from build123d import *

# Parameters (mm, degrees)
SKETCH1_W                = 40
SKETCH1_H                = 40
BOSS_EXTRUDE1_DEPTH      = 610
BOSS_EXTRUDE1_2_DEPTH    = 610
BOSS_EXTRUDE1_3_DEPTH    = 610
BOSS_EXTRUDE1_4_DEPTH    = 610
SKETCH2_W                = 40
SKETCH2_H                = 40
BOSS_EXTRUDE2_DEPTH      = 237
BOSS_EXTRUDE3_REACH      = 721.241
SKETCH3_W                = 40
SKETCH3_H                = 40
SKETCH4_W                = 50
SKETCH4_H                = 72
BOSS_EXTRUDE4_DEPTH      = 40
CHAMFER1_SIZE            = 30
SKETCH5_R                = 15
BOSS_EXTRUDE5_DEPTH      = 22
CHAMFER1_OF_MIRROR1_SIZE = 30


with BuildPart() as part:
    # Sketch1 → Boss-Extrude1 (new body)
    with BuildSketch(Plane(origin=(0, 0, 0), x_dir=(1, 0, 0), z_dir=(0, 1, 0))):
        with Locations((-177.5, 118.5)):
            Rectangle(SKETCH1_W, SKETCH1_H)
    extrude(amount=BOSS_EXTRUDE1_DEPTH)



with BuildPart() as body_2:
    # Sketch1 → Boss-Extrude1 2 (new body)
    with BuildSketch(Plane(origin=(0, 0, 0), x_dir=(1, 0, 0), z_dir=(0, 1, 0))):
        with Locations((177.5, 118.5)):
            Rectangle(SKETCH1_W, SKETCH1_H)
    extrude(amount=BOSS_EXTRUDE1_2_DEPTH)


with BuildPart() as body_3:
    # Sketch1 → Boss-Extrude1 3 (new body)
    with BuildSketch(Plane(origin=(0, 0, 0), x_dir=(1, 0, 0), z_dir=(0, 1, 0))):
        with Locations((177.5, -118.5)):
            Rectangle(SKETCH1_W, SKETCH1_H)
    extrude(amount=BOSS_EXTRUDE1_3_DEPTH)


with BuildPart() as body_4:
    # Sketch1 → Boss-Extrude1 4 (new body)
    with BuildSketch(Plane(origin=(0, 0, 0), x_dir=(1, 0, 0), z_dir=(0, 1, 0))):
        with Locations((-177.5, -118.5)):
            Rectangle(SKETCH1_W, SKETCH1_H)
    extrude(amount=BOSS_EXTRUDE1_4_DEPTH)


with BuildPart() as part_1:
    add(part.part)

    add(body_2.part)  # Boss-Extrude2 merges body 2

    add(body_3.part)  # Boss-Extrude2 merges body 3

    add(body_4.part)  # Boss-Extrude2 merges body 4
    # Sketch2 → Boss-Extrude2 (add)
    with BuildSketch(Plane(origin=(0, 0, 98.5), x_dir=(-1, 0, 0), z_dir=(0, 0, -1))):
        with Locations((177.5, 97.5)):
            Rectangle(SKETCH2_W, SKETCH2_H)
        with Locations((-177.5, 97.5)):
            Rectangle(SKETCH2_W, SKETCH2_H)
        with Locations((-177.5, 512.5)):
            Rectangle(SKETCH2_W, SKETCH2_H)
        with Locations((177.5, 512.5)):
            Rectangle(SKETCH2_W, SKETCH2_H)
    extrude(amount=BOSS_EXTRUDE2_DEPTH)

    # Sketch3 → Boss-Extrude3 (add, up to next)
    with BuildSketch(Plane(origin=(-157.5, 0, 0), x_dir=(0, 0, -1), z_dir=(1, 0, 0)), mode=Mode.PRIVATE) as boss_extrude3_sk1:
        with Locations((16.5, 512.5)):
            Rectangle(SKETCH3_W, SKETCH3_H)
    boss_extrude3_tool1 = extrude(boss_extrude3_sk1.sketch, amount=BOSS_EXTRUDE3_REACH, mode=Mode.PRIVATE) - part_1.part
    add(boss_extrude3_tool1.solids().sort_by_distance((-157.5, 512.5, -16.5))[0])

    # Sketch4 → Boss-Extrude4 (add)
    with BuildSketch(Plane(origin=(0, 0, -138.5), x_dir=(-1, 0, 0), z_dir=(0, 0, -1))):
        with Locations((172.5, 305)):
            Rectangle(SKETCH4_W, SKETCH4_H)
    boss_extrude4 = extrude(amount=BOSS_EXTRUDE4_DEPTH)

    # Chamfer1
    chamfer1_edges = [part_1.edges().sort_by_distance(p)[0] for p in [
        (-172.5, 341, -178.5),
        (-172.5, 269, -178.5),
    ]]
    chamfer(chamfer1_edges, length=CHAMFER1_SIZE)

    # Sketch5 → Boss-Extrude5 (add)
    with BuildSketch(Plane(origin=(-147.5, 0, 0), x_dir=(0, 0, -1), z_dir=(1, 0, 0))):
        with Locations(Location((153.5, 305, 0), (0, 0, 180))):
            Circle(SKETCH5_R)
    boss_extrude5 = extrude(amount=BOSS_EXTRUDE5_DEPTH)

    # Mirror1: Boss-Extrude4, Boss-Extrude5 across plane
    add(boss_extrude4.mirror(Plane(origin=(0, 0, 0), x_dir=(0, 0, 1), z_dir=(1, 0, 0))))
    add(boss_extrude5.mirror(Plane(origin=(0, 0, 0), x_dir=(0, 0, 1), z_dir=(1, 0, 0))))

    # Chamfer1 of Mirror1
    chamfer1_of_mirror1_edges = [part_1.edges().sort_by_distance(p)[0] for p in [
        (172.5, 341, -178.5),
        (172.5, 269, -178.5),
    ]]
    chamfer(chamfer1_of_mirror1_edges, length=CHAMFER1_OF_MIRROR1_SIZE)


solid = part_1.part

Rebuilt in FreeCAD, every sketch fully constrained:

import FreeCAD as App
import Part
import Sketcher
Q = App.Units.Quantity


def edges_at(feature, points):
    """Names of the edges that pass closest to the given points."""
    edges = feature.Shape.Edges
    near = lambda p: min(range(len(edges)), key=lambda i: edges[i].distToShape(Part.Vertex(*p))[0])
    return sorted({f"Edge{near(p) + 1}" for p in points})


def add_polygon(sketch, points):
    """Adds a closed chain of lines whose ends are joined by coincident constraints."""
    first, n = sketch.GeometryCount, len(points)
    for a, b in zip(points, points[1:] + points[:1]):
        sketch.addGeometry(Part.LineSegment(App.Vector(*a, 0), App.Vector(*b, 0)), False)
    for i in range(n):
        sketch.addConstraint(Sketcher.Constraint("Coincident", first + i, 2, first + (i + 1) % n, 1))

doc = App.newDocument("Part")
body = doc.addObject("PartDesign::Body", "Body")

sketch1 = body.newObject("Sketcher::SketchObject", "Sketch")
sketch1.AttachmentSupport = (doc.getObject("XZ_Plane"), [""])
sketch1.MapMode = "FlatFace"
add_polygon(sketch1, [(-197.5, -138.5), (-197.5, -98.5), (-157.5, -98.5), (-157.5, -138.5)])
sketch1.addConstraint(Sketcher.Constraint("Vertical", 0))
sketch1.addConstraint(Sketcher.Constraint("Horizontal", 1))
sketch1.addConstraint(Sketcher.Constraint("Vertical", 2))
sketch1.addConstraint(Sketcher.Constraint("Horizontal", 3))
sketch1.addConstraint(Sketcher.Constraint("Equal", 3, 0))
sketch1.addConstraint(Sketcher.Constraint("DistanceX", 1, 1, 1, 2, Q("40 mm")))
sketch1.addConstraint(Sketcher.Constraint("DistanceX", 0, 2, -1, 1, Q("197.5 mm")))
sketch1.addConstraint(Sketcher.Constraint("DistanceY", 0, 2, -1, 1, Q("98.5 mm")))
pad1 = body.newObject("PartDesign::Pad", "Pad")
pad1.Profile = sketch1
pad1.Length = 610
pad1.Reversed = True
body2 = doc.addObject("PartDesign::Body", "Body001")

sketch2 = body2.newObject("Sketcher::SketchObject", "Sketch001")
sketch2.AttachmentSupport = (doc.getObject("XZ_Plane001"), [""])
sketch2.MapMode = "FlatFace"
add_polygon(sketch2, [(157.5, -138.5), (157.5, -98.5), (197.5, -98.5), (197.5, -138.5)])
sketch2.addConstraint(Sketcher.Constraint("Vertical", 0))
sketch2.addConstraint(Sketcher.Constraint("Horizontal", 1))
sketch2.addConstraint(Sketcher.Constraint("Vertical", 2))
sketch2.addConstraint(Sketcher.Constraint("Horizontal", 3))
sketch2.addConstraint(Sketcher.Constraint("Equal", 3, 0))
sketch2.addConstraint(Sketcher.Constraint("DistanceX", 1, 1, 1, 2, Q("40 mm")))
sketch2.addConstraint(Sketcher.Constraint("DistanceX", -1, 1, 0, 2, Q("157.5 mm")))
sketch2.addConstraint(Sketcher.Constraint("DistanceY", 0, 2, -1, 1, Q("98.5 mm")))
pad2 = body2.newObject("PartDesign::Pad", "Pad001")
pad2.Profile = sketch2
pad2.Length = 610
pad2.Reversed = True
body3 = doc.addObject("PartDesign::Body", "Body002")

sketch3 = body3.newObject("Sketcher::SketchObject", "Sketch002")
sketch3.AttachmentSupport = (doc.getObject("XZ_Plane002"), [""])
sketch3.MapMode = "FlatFace"
add_polygon(sketch3, [(157.5, 98.5), (157.5, 138.5), (197.5, 138.5), (197.5, 98.5)])
sketch3.addConstraint(Sketcher.Constraint("Vertical", 0))
sketch3.addConstraint(Sketcher.Constraint("Horizontal", 1))
sketch3.addConstraint(Sketcher.Constraint("Vertical", 2))
sketch3.addConstraint(Sketcher.Constraint("Horizontal", 3))
sketch3.addConstraint(Sketcher.Constraint("Equal", 3, 0))
sketch3.addConstraint(Sketcher.Constraint("DistanceX", 1, 1, 1, 2, Q("40 mm")))
sketch3.addConstraint(Sketcher.Constraint("DistanceX", -1, 1, 0, 2, Q("157.5 mm")))
sketch3.addConstraint(Sketcher.Constraint("DistanceY", -1, 1, 0, 2, Q("138.5 mm")))
pad3 = body3.newObject("PartDesign::Pad", "Pad002")
pad3.Profile = sketch3
pad3.Length = 610
pad3.Reversed = True
body4 = doc.addObject("PartDesign::Body", "Body003")

sketch4 = body4.newObject("Sketcher::SketchObject", "Sketch003")
sketch4.AttachmentSupport = (doc.getObject("XZ_Plane003"), [""])
sketch4.MapMode = "FlatFace"
add_polygon(sketch4, [(-197.5, 98.5), (-197.5, 138.5), (-157.5, 138.5), (-157.5, 98.5)])
sketch4.addConstraint(Sketcher.Constraint("Vertical", 0))
sketch4.addConstraint(Sketcher.Constraint("Horizontal", 1))
sketch4.addConstraint(Sketcher.Constraint("Vertical", 2))
sketch4.addConstraint(Sketcher.Constraint("Horizontal", 3))
sketch4.addConstraint(Sketcher.Constraint("Equal", 3, 0))
sketch4.addConstraint(Sketcher.Constraint("DistanceX", 1, 1, 1, 2, Q("40 mm")))
sketch4.addConstraint(Sketcher.Constraint("DistanceX", 0, 2, -1, 1, Q("197.5 mm")))
sketch4.addConstraint(Sketcher.Constraint("DistanceY", -1, 1, 0, 2, Q("138.5 mm")))
pad4 = body4.newObject("PartDesign::Pad", "Pad003")
pad4.Profile = sketch4
pad4.Length = 610
pad4.Reversed = True
body.AllowCompound = True
doc.recompute()

boolean = body.newObject("PartDesign::Boolean", "Boolean")
boolean.Type = "Fuse"
boolean.addObjects([body2])
doc.recompute()

boolean2 = body.newObject("PartDesign::Boolean", "Boolean001")
boolean2.Type = "Fuse"
boolean2.addObjects([body3])
doc.recompute()

boolean3 = body.newObject("PartDesign::Boolean", "Boolean002")
boolean3.Type = "Fuse"
boolean3.addObjects([body4])

sketch5 = body.newObject("Sketcher::SketchObject", "Sketch004")
sketch5.AttachmentSupport = (doc.getObject("XY_Plane"), [""])
sketch5.MapMode = "FlatFace"
sketch5.AttachmentOffset = App.Placement(App.Vector(0, 0, 98.5), App.Rotation())
add_polygon(sketch5, [(-157.5, 117.5), (-157.5, 77.5), (-197.5, 77.5), (-197.5, 117.5)])
add_polygon(sketch5, [(197.5, 117.5), (197.5, 77.5), (157.5, 77.5), (157.5, 117.5)])
add_polygon(sketch5, [(197.5, 532.5), (197.5, 492.5), (157.5, 492.5), (157.5, 532.5)])
add_polygon(sketch5, [(-157.5, 532.5), (-157.5, 492.5), (-197.5, 492.5), (-197.5, 532.5)])
sketch5.addConstraint(Sketcher.Constraint("Vertical", 0))
sketch5.addConstraint(Sketcher.Constraint("Horizontal", 1))
sketch5.addConstraint(Sketcher.Constraint("Vertical", 2))
sketch5.addConstraint(Sketcher.Constraint("Horizontal", 3))
sketch5.addConstraint(Sketcher.Constraint("Vertical", 4))
sketch5.addConstraint(Sketcher.Constraint("Horizontal", 5))
sketch5.addConstraint(Sketcher.Constraint("Vertical", 6))
sketch5.addConstraint(Sketcher.Constraint("Horizontal", 7))
sketch5.addConstraint(Sketcher.Constraint("Vertical", 8))
sketch5.addConstraint(Sketcher.Constraint("Horizontal", 9))
sketch5.addConstraint(Sketcher.Constraint("Vertical", 10))
sketch5.addConstraint(Sketcher.Constraint("Horizontal", 11))
sketch5.addConstraint(Sketcher.Constraint("Vertical", 12))
sketch5.addConstraint(Sketcher.Constraint("Horizontal", 13))
sketch5.addConstraint(Sketcher.Constraint("Vertical", 14))
sketch5.addConstraint(Sketcher.Constraint("Horizontal", 15))
sketch5.addConstraint(Sketcher.Constraint("Symmetric", 1, 2, 4, 2, -2))
sketch5.addConstraint(Sketcher.Constraint("Symmetric", 3, 2, 6, 2, -2))
sketch5.addConstraint(Sketcher.Constraint("Symmetric", 9, 2, 12, 2, -2))
sketch5.addConstraint(Sketcher.Constraint("Symmetric", 11, 2, 14, 2, -2))
sketch5.addConstraint(Sketcher.Constraint("Vertical", 7, 2, 8, 2))
sketch5.addConstraint(Sketcher.Constraint("Vertical", 6, 2, 9, 2))
sketch5.addConstraint(Sketcher.Constraint("Equal", 15, 0))
sketch5.addConstraint(Sketcher.Constraint("Equal", 6, 8))
sketch5.addConstraint(Sketcher.Constraint("DistanceX", 1, 2, 1, 1, Q("40 mm")))
sketch5.addConstraint(Sketcher.Constraint("DistanceX", 0, 2, 4, 2, Q("355 mm")))
sketch5.addConstraint(Sketcher.Constraint("DistanceY", 7, 2, 8, 2, Q("375 mm")))
sketch5.addConstraint(Sketcher.Constraint("DistanceY", -1, 1, 0, 2, Q("77.5 mm")))
pad5 = body.newObject("PartDesign::Pad", "Pad004")
pad5.Profile = sketch5
pad5.Length = 237
pad5.Reversed = True

sketch6 = body.newObject("Sketcher::SketchObject", "Sketch005")
sketch6.AttachmentSupport = (doc.getObject("YZ_Plane"), [""])
sketch6.MapMode = "FlatFace"
sketch6.AttachmentOffset = App.Placement(App.Vector(0, 0, -157.5), App.Rotation())
add_polygon(sketch6, [(532.5, 3.5), (492.5, 3.5), (492.5, -36.5), (532.5, -36.5)])
sketch6.addConstraint(Sketcher.Constraint("Horizontal", 0))
sketch6.addConstraint(Sketcher.Constraint("Vertical", 1))
sketch6.addConstraint(Sketcher.Constraint("Horizontal", 2))
sketch6.addConstraint(Sketcher.Constraint("Vertical", 3))
sketch6.addConstraint(Sketcher.Constraint("Equal", 2, 1))
sketch6.addConstraint(Sketcher.Constraint("DistanceX", 0, 2, 0, 1, Q("40 mm")))
sketch6.addConstraint(Sketcher.Constraint("DistanceX", -1, 1, 0, 2, Q("492.5 mm")))
sketch6.addConstraint(Sketcher.Constraint("DistanceY", -1, 1, 0, 2, Q("3.5 mm")))
pad6 = body.newObject("PartDesign::Pad", "Pad005")
pad6.Profile = sketch6
pad6.Type = "UpToFirst"

sketch7 = body.newObject("Sketcher::SketchObject", "Sketch006")
sketch7.AttachmentSupport = (doc.getObject("XY_Plane"), [""])
sketch7.MapMode = "FlatFace"
sketch7.AttachmentOffset = App.Placement(App.Vector(0, 0, -138.5), App.Rotation())
add_polygon(sketch7, [(-147.5, 341), (-147.5, 269), (-197.5, 269), (-197.5, 341)])
sketch7.addConstraint(Sketcher.Constraint("Vertical", 0))
sketch7.addConstraint(Sketcher.Constraint("Horizontal", 1))
sketch7.addConstraint(Sketcher.Constraint("Vertical", 2))
sketch7.addConstraint(Sketcher.Constraint("Horizontal", 3))
sketch7.addConstraint(Sketcher.Constraint("DistanceX", 1, 2, 1, 1, Q("50 mm")))
sketch7.addConstraint(Sketcher.Constraint("DistanceY", 0, 2, 0, 1, Q("72 mm")))
sketch7.addConstraint(Sketcher.Constraint("DistanceY", -1, 1, 0, 2, Q("269 mm")))
sketch7.addConstraint(Sketcher.Constraint("DistanceX", 0, 2, -1, 1, Q("147.5 mm")))
pad7 = body.newObject("PartDesign::Pad", "Pad006")
pad7.Profile = sketch7
pad7.Length = 40
pad7.Reversed = True
doc.recompute()

chamfer = body.newObject("PartDesign::Chamfer", "Chamfer")
chamfer.Base = (pad7, edges_at(pad7, [(-172.5, 341, -178.5), (-172.5, 269, -178.5)]))
chamfer.Size = 30

sketch8 = body.newObject("Sketcher::SketchObject", "Sketch007")
sketch8.AttachmentSupport = (doc.getObject("YZ_Plane"), [""])
sketch8.MapMode = "FlatFace"
sketch8.AttachmentOffset = App.Placement(App.Vector(0, 0, -147.5), App.Rotation())
sketch8.addGeometry(Part.Circle(App.Vector(305, -153.5, 0), App.Vector(0, 0, 1), 15), False)
sketch8.addConstraint(Sketcher.Constraint("Diameter", 0, Q("30 mm")))
sketch8.addConstraint(Sketcher.Constraint("DistanceX", -1, 1, 0, 3, Q("305 mm")))
sketch8.addConstraint(Sketcher.Constraint("DistanceY", 0, 3, -1, 1, Q("153.5 mm")))
pad8 = body.newObject("PartDesign::Pad", "Pad007")
pad8.Profile = sketch8
pad8.Length = 22
doc.recompute()

mirrored = body.newObject("PartDesign::Mirrored", "Mirrored")
mirrored.Originals = [pad7, pad8]
mirrored.MirrorPlane = (doc.getObject("YZ_Plane"), [""])
body.Tip = mirrored
doc.recompute()

chamfer2 = body.newObject("PartDesign::Chamfer", "Chamfer001")
chamfer2.Base = (mirrored, edges_at(mirrored, [(172.5, 341, -178.5), (172.5, 269, -178.5)]))
chamfer2.Size = 30

doc.recompute()
